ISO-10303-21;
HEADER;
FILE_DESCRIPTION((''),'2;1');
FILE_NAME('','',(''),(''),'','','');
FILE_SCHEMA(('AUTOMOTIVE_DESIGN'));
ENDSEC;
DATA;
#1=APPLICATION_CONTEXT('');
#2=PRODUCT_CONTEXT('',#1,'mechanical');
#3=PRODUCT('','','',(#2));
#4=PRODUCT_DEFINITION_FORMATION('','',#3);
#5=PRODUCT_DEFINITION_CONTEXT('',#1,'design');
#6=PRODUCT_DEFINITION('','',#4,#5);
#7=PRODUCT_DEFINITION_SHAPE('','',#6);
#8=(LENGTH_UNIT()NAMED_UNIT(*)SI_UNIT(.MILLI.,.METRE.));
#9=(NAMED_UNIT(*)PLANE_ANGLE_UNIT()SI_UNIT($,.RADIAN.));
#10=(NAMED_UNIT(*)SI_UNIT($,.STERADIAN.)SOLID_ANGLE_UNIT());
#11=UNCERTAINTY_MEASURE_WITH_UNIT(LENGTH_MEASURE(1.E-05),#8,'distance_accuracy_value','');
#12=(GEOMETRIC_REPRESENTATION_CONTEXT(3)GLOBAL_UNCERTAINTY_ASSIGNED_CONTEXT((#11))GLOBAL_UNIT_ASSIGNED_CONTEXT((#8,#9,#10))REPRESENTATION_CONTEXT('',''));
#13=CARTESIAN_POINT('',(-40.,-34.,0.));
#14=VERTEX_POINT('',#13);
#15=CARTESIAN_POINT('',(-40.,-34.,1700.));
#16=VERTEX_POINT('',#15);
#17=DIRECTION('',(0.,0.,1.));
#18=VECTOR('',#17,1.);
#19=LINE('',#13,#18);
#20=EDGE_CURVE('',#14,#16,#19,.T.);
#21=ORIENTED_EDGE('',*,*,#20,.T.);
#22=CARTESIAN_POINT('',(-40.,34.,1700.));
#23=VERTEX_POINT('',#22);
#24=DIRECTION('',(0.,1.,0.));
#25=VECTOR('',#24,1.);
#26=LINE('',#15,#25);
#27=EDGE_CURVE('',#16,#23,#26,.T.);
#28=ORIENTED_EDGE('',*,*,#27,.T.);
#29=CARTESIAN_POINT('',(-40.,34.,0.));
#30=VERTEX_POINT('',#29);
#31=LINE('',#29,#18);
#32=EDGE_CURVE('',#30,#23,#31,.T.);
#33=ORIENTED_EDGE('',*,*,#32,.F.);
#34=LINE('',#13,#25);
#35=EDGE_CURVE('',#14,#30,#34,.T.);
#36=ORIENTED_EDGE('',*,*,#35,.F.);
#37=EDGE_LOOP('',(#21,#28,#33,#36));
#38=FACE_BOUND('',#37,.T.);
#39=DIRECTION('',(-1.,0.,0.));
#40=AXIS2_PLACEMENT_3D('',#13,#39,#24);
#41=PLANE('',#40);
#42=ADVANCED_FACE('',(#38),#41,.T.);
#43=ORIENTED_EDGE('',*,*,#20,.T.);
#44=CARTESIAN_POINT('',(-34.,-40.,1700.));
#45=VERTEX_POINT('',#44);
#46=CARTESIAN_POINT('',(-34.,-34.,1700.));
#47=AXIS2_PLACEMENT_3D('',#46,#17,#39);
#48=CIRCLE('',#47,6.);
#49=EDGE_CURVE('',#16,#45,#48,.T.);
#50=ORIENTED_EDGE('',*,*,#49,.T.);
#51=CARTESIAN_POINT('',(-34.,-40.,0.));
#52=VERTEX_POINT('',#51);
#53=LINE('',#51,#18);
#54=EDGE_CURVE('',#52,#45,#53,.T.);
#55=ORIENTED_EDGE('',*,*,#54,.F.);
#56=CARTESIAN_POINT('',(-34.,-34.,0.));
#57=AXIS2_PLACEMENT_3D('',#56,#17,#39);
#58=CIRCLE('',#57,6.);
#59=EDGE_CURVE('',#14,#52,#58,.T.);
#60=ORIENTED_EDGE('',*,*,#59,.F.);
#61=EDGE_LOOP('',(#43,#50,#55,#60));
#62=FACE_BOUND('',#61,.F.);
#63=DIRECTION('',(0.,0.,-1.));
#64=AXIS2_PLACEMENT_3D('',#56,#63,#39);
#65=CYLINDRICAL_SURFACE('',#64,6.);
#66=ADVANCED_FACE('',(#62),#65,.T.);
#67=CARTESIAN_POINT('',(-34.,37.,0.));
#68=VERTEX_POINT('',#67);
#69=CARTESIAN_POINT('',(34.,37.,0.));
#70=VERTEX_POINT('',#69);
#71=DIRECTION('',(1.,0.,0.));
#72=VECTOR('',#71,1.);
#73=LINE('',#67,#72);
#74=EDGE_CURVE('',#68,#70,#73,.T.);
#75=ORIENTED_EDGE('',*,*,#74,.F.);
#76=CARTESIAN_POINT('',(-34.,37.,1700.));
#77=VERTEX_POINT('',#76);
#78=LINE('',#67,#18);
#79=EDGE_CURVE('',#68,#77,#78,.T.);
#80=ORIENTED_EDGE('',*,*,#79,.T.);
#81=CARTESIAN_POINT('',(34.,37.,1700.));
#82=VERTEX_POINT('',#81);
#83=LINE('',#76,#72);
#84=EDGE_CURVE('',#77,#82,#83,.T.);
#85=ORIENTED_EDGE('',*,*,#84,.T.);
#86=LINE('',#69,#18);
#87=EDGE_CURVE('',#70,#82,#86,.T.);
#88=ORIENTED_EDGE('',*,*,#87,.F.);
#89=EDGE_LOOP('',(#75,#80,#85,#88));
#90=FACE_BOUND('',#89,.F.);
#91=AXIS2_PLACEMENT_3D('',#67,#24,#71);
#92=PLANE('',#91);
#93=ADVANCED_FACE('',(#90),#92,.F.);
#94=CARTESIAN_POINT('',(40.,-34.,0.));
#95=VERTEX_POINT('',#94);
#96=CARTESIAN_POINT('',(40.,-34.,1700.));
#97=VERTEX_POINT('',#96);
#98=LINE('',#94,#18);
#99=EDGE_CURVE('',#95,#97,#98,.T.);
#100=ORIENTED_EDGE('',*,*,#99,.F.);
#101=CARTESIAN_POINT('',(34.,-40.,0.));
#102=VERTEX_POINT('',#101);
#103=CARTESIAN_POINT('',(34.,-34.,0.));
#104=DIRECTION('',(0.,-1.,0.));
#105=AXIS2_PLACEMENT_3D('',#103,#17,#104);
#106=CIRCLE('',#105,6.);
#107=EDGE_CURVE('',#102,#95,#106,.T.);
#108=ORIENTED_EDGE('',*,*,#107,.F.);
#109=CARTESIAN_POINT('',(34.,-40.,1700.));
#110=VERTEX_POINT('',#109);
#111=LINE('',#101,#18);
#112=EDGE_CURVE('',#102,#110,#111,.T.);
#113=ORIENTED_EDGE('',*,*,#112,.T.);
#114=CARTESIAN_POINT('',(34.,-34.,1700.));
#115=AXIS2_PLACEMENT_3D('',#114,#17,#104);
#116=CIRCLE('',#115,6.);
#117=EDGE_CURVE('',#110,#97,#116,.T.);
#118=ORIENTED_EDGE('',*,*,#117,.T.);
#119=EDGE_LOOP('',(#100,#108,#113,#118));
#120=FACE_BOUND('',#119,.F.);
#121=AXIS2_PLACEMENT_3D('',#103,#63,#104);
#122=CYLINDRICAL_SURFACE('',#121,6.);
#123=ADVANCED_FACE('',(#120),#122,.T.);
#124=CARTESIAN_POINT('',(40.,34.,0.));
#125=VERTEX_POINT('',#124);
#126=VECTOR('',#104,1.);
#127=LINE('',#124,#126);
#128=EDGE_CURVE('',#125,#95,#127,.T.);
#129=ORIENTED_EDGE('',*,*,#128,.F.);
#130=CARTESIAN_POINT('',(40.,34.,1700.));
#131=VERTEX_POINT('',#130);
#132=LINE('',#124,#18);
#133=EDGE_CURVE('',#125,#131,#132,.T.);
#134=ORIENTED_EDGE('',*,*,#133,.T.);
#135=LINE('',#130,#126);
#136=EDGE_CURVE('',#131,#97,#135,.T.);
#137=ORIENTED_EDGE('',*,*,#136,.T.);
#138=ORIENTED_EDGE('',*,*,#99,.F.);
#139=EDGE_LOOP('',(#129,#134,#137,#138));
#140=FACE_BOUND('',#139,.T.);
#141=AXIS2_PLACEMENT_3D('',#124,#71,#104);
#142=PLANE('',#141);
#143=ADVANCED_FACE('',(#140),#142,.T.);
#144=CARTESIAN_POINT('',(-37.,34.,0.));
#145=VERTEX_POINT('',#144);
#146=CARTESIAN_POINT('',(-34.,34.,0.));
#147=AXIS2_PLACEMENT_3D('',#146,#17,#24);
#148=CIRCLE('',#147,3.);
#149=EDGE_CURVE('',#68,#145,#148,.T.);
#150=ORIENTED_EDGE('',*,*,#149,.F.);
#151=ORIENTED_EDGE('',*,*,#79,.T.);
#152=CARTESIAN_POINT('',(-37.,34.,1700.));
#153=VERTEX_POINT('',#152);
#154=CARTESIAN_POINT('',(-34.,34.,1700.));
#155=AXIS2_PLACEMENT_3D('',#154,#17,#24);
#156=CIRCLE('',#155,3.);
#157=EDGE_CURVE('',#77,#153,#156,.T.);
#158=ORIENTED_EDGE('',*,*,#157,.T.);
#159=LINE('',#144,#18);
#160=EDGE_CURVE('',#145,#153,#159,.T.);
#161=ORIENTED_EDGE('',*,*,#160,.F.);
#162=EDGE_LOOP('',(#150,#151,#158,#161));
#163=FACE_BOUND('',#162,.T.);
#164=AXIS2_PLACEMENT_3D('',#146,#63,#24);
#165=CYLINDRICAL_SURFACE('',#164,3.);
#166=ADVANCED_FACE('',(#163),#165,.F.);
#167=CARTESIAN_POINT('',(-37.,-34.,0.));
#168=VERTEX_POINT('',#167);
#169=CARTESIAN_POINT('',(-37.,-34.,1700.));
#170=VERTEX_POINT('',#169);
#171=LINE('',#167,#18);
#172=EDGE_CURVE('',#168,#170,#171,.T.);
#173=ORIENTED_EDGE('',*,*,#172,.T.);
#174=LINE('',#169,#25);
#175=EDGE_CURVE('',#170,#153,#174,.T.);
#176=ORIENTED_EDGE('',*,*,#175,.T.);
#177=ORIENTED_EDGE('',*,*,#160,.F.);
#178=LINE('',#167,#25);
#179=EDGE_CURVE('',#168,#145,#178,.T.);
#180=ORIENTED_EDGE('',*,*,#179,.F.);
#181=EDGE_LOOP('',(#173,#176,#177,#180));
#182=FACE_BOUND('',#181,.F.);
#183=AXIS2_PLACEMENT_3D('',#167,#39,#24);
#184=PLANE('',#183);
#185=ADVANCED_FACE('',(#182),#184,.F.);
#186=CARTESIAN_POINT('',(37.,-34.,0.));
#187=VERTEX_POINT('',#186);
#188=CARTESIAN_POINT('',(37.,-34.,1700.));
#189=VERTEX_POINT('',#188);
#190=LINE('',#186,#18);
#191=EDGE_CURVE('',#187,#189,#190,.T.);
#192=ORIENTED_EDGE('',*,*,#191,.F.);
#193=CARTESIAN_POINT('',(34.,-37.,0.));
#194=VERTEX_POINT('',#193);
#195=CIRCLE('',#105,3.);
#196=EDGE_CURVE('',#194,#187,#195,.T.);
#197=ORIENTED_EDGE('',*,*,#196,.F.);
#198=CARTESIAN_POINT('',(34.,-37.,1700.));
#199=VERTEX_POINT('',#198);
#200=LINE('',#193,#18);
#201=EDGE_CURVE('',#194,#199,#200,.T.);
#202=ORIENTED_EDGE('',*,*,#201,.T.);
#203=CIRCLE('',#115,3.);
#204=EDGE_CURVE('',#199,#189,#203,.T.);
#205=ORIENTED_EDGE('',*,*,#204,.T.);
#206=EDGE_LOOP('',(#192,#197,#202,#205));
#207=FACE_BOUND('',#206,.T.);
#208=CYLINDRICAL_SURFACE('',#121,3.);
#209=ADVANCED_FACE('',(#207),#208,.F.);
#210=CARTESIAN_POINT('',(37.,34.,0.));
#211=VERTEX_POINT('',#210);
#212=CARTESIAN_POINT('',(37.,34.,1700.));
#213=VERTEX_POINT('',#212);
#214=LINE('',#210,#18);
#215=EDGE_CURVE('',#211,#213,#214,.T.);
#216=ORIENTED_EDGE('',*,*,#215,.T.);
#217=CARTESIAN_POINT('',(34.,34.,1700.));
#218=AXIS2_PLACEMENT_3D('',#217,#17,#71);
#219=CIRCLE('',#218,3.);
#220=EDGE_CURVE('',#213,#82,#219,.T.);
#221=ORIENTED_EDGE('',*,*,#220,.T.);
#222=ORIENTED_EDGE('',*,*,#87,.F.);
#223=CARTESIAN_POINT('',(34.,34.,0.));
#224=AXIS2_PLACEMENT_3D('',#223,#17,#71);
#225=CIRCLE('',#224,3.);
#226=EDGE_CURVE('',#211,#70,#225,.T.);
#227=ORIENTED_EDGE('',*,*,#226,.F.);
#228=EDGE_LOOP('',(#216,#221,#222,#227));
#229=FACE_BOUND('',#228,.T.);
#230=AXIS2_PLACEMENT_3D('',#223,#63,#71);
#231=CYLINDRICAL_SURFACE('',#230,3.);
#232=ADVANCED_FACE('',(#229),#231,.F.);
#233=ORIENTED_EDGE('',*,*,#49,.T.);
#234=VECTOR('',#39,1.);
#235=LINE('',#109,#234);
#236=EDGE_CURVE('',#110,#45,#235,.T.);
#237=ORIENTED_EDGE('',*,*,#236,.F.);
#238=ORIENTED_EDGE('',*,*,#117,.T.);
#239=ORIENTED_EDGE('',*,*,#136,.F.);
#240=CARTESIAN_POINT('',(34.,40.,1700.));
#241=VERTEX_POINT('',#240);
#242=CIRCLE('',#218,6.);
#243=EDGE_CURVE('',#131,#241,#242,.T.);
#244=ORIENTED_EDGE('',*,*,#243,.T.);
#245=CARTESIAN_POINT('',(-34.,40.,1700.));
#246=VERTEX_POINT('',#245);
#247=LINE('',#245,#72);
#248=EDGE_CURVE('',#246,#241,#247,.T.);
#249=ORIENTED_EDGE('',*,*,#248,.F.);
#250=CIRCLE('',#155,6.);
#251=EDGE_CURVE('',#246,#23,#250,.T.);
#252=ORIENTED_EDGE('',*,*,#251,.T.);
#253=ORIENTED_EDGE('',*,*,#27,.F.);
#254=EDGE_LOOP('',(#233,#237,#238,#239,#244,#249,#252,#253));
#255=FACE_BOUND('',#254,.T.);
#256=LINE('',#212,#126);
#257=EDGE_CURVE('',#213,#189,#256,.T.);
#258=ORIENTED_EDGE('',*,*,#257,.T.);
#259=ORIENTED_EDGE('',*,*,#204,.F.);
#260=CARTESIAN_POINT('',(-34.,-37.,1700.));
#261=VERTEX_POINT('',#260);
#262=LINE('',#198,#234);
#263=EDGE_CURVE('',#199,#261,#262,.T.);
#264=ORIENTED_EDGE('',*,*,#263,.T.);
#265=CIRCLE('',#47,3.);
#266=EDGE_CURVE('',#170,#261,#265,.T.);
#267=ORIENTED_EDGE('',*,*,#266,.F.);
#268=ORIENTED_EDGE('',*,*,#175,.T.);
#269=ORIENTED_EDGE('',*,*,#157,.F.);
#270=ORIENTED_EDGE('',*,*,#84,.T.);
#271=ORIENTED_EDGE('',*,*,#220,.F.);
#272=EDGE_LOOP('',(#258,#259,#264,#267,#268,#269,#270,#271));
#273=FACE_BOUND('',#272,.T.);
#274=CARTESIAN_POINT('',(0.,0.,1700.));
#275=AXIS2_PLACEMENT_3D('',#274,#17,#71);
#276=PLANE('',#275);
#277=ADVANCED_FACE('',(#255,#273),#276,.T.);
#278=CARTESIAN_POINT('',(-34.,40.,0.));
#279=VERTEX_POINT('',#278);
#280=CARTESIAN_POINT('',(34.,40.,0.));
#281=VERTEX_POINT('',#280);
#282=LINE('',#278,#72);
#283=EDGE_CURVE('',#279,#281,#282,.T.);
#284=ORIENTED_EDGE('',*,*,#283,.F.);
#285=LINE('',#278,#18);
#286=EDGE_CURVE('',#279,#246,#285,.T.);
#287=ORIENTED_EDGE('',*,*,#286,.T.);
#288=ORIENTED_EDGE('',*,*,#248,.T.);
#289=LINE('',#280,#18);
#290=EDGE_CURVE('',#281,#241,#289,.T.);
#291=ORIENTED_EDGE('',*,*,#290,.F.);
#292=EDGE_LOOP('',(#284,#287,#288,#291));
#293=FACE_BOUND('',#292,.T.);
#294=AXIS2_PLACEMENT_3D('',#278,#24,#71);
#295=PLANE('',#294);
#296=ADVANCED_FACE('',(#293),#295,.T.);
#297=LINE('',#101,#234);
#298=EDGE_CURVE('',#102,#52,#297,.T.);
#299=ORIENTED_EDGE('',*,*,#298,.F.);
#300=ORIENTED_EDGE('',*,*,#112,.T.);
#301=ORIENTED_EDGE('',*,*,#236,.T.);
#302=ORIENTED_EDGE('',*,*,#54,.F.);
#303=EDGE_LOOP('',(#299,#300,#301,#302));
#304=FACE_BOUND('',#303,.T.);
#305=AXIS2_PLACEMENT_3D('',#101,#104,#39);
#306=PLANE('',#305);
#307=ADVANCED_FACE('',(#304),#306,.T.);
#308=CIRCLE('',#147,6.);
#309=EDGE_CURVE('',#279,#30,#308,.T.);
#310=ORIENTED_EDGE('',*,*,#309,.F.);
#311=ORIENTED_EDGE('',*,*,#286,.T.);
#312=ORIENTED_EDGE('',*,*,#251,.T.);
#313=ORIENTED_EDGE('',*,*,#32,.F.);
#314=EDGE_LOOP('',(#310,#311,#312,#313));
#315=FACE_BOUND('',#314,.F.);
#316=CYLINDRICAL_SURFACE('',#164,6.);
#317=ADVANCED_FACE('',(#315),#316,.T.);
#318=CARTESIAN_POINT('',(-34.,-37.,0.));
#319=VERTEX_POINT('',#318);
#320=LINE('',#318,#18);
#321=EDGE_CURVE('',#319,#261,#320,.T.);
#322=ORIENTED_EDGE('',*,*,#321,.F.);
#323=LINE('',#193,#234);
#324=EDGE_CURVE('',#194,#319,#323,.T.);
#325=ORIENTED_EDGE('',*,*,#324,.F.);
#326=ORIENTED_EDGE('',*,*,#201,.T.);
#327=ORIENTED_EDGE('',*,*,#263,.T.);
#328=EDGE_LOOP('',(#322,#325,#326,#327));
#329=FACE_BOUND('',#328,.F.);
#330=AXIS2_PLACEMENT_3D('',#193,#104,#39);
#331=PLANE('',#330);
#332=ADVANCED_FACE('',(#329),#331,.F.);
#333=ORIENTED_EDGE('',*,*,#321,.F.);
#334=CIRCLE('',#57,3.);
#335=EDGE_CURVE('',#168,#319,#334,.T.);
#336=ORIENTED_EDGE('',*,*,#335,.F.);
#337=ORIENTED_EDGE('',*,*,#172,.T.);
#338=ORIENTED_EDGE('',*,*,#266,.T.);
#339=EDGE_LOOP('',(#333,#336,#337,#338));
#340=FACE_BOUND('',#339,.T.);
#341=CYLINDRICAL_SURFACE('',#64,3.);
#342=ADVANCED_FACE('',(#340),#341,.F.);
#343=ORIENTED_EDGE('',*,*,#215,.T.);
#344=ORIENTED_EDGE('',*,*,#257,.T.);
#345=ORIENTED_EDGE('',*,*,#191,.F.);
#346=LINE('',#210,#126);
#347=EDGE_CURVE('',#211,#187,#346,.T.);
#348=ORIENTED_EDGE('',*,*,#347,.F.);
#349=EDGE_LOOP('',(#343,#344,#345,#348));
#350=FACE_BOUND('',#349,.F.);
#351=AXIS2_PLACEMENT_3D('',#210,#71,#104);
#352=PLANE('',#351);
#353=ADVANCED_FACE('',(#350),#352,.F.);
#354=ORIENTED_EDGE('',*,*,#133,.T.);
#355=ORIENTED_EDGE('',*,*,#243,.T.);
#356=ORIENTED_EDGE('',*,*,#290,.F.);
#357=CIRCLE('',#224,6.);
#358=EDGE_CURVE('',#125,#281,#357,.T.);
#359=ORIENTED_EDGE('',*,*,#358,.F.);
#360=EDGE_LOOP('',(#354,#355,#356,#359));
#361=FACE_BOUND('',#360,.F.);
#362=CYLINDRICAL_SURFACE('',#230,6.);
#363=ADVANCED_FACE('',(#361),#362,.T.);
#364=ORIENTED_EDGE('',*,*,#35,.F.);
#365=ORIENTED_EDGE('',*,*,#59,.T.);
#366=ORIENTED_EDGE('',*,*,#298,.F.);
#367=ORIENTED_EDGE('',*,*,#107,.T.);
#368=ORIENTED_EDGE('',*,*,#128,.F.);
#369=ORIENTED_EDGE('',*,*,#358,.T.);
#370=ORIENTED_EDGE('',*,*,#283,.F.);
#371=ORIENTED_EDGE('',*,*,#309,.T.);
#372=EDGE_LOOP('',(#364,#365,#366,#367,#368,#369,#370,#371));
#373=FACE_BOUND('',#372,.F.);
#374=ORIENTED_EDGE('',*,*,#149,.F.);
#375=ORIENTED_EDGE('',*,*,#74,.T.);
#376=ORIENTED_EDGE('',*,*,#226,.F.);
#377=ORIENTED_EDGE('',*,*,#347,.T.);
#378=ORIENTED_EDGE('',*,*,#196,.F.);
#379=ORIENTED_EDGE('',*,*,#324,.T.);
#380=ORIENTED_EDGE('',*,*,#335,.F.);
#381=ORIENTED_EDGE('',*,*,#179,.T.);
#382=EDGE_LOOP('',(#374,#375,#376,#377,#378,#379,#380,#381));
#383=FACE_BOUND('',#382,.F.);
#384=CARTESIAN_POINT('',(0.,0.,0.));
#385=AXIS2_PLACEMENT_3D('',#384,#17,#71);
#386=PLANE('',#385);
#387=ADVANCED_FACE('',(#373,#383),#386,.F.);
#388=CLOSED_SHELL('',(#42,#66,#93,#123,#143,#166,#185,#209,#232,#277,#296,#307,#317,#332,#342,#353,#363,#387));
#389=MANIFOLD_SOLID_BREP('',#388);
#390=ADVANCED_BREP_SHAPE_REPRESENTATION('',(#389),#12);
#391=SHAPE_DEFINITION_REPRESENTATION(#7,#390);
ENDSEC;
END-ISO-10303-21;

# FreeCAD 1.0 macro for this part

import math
import FreeCAD as App
import Part
import Sketcher

V = App.Vector
Q = App.Units.Quantity

doc = App.newDocument("Part")
body = doc.addObject("PartDesign::Body", "Body")

# Sketch on XY plane
sketch1 = body.newObject("Sketcher::SketchObject", "Sketch")
sketch1.AttachmentSupport = (doc.getObject("XY_Plane"), [""])
sketch1.MapMode = "FlatFace"
sketch1.addGeometry(Part.LineSegment(V(-40, 34, 0), V(-40, -34, 0)), False)
sketch1.addGeometry(Part.ArcOfCircle(Part.Circle(V(-34, -34, 0), V(0, 0, 1), 6), math.radians(180), math.radians(270)), False)
sketch1.addGeometry(Part.LineSegment(V(-34, -40, 0), V(34, -40, 0)), False)
sketch1.addGeometry(Part.ArcOfCircle(Part.Circle(V(34, -34, 0), V(0, 0, 1), 6), math.radians(-90), math.radians(0)), False)
sketch1.addGeometry(Part.LineSegment(V(40, -34, 0), V(40, 34, 0)), False)
sketch1.addGeometry(Part.ArcOfCircle(Part.Circle(V(34, 34, 0), V(0, 0, 1), 6), math.radians(0), math.radians(90)), False)
sketch1.addGeometry(Part.LineSegment(V(34, 40, 0), V(-34, 40, 0)), False)
sketch1.addGeometry(Part.ArcOfCircle(Part.Circle(V(-34, 34, 0), V(0, 0, 1), 6), math.radians(90), math.radians(180)), False)
sketch1.addGeometry(Part.ArcOfCircle(Part.Circle(V(-34, 34, 0), V(0, 0, 1), 3), math.radians(90), math.radians(180)), False)
sketch1.addGeometry(Part.LineSegment(V(-34, 37, 0), V(34, 37, 0)), False)
sketch1.addGeometry(Part.ArcOfCircle(Part.Circle(V(34, 34, 0), V(0, 0, 1), 3), math.radians(0), math.radians(90)), False)
sketch1.addGeometry(Part.LineSegment(V(37, 34, 0), V(37, -34, 0)), False)
sketch1.addGeometry(Part.ArcOfCircle(Part.Circle(V(34, -34, 0), V(0, 0, 1), 3), math.radians(-90), math.radians(0)), False)
sketch1.addGeometry(Part.LineSegment(V(34, -37, 0), V(-34, -37, 0)), False)
sketch1.addGeometry(Part.ArcOfCircle(Part.Circle(V(-34, -34, 0), V(0, 0, 1), 3), math.radians(180), math.radians(270)), False)
sketch1.addGeometry(Part.LineSegment(V(-37, -34, 0), V(-37, 34, 0)), False)
sketch1.addConstraint(Sketcher.Constraint("Tangent", 0, 2, 1, 1))
sketch1.addConstraint(Sketcher.Constraint("Tangent", 1, 2, 2, 1))
sketch1.addConstraint(Sketcher.Constraint("Tangent", 2, 2, 3, 1))
sketch1.addConstraint(Sketcher.Constraint("Tangent", 3, 2, 4, 1))
sketch1.addConstraint(Sketcher.Constraint("Tangent", 4, 2, 5, 1))
sketch1.addConstraint(Sketcher.Constraint("Tangent", 5, 2, 6, 1))
sketch1.addConstraint(Sketcher.Constraint("Tangent", 6, 2, 7, 1))
sketch1.addConstraint(Sketcher.Constraint("Tangent", 7, 2, 0, 1))
sketch1.addConstraint(Sketcher.Constraint("Tangent", 8, 1, 9, 1))
sketch1.addConstraint(Sketcher.Constraint("Tangent", 9, 2, 10, 2))
sketch1.addConstraint(Sketcher.Constraint("Tangent", 10, 1, 11, 1))
sketch1.addConstraint(Sketcher.Constraint("Tangent", 11, 2, 12, 2))
sketch1.addConstraint(Sketcher.Constraint("Tangent", 12, 1, 13, 1))
sketch1.addConstraint(Sketcher.Constraint("Tangent", 13, 2, 14, 2))
sketch1.addConstraint(Sketcher.Constraint("Tangent", 14, 1, 15, 1))
sketch1.addConstraint(Sketcher.Constraint("Tangent", 15, 2, 8, 2))
sketch1.addConstraint(Sketcher.Constraint("Vertical", 0))
sketch1.addConstraint(Sketcher.Constraint("Horizontal", 2))
sketch1.addConstraint(Sketcher.Constraint("Vertical", 4))
sketch1.addConstraint(Sketcher.Constraint("Horizontal", 6))
sketch1.addConstraint(Sketcher.Constraint("Horizontal", 9))
sketch1.addConstraint(Sketcher.Constraint("Vertical", 11))
sketch1.addConstraint(Sketcher.Constraint("Horizontal", 13))
sketch1.addConstraint(Sketcher.Constraint("Vertical", 15))
sketch1.addConstraint(Sketcher.Constraint("Coincident", 8, 3, 7, 3))
sketch1.addConstraint(Sketcher.Constraint("Coincident", 10, 3, 5, 3))
sketch1.addConstraint(Sketcher.Constraint("Coincident", 12, 3, 3, 3))
sketch1.addConstraint(Sketcher.Constraint("Equal", 1, 3))
sketch1.addConstraint(Sketcher.Constraint("Equal", 3, 5))
sketch1.addConstraint(Sketcher.Constraint("Equal", 5, 7))
sketch1.addConstraint(Sketcher.Constraint("Equal", 12, 14))
sketch1.addConstraint(Sketcher.Constraint("Symmetric", 1, 3, 5, 3, -1, 1))
sketch1.addConstraint(Sketcher.Constraint("Equal", 13, 0))
sketch1.addConstraint(Sketcher.Constraint("Radius", 1, Q("6 mm")))
sketch1.addConstraint(Sketcher.Constraint("Radius", 8, Q("3 mm")))
sketch1.addConstraint(Sketcher.Constraint("DistanceX", 0, 2, -1, 1, Q("40 mm")))
pad1 = body.newObject("PartDesign::Pad", "Pad")
pad1.Profile = sketch1
pad1.Length = 1700

doc.recompute()
